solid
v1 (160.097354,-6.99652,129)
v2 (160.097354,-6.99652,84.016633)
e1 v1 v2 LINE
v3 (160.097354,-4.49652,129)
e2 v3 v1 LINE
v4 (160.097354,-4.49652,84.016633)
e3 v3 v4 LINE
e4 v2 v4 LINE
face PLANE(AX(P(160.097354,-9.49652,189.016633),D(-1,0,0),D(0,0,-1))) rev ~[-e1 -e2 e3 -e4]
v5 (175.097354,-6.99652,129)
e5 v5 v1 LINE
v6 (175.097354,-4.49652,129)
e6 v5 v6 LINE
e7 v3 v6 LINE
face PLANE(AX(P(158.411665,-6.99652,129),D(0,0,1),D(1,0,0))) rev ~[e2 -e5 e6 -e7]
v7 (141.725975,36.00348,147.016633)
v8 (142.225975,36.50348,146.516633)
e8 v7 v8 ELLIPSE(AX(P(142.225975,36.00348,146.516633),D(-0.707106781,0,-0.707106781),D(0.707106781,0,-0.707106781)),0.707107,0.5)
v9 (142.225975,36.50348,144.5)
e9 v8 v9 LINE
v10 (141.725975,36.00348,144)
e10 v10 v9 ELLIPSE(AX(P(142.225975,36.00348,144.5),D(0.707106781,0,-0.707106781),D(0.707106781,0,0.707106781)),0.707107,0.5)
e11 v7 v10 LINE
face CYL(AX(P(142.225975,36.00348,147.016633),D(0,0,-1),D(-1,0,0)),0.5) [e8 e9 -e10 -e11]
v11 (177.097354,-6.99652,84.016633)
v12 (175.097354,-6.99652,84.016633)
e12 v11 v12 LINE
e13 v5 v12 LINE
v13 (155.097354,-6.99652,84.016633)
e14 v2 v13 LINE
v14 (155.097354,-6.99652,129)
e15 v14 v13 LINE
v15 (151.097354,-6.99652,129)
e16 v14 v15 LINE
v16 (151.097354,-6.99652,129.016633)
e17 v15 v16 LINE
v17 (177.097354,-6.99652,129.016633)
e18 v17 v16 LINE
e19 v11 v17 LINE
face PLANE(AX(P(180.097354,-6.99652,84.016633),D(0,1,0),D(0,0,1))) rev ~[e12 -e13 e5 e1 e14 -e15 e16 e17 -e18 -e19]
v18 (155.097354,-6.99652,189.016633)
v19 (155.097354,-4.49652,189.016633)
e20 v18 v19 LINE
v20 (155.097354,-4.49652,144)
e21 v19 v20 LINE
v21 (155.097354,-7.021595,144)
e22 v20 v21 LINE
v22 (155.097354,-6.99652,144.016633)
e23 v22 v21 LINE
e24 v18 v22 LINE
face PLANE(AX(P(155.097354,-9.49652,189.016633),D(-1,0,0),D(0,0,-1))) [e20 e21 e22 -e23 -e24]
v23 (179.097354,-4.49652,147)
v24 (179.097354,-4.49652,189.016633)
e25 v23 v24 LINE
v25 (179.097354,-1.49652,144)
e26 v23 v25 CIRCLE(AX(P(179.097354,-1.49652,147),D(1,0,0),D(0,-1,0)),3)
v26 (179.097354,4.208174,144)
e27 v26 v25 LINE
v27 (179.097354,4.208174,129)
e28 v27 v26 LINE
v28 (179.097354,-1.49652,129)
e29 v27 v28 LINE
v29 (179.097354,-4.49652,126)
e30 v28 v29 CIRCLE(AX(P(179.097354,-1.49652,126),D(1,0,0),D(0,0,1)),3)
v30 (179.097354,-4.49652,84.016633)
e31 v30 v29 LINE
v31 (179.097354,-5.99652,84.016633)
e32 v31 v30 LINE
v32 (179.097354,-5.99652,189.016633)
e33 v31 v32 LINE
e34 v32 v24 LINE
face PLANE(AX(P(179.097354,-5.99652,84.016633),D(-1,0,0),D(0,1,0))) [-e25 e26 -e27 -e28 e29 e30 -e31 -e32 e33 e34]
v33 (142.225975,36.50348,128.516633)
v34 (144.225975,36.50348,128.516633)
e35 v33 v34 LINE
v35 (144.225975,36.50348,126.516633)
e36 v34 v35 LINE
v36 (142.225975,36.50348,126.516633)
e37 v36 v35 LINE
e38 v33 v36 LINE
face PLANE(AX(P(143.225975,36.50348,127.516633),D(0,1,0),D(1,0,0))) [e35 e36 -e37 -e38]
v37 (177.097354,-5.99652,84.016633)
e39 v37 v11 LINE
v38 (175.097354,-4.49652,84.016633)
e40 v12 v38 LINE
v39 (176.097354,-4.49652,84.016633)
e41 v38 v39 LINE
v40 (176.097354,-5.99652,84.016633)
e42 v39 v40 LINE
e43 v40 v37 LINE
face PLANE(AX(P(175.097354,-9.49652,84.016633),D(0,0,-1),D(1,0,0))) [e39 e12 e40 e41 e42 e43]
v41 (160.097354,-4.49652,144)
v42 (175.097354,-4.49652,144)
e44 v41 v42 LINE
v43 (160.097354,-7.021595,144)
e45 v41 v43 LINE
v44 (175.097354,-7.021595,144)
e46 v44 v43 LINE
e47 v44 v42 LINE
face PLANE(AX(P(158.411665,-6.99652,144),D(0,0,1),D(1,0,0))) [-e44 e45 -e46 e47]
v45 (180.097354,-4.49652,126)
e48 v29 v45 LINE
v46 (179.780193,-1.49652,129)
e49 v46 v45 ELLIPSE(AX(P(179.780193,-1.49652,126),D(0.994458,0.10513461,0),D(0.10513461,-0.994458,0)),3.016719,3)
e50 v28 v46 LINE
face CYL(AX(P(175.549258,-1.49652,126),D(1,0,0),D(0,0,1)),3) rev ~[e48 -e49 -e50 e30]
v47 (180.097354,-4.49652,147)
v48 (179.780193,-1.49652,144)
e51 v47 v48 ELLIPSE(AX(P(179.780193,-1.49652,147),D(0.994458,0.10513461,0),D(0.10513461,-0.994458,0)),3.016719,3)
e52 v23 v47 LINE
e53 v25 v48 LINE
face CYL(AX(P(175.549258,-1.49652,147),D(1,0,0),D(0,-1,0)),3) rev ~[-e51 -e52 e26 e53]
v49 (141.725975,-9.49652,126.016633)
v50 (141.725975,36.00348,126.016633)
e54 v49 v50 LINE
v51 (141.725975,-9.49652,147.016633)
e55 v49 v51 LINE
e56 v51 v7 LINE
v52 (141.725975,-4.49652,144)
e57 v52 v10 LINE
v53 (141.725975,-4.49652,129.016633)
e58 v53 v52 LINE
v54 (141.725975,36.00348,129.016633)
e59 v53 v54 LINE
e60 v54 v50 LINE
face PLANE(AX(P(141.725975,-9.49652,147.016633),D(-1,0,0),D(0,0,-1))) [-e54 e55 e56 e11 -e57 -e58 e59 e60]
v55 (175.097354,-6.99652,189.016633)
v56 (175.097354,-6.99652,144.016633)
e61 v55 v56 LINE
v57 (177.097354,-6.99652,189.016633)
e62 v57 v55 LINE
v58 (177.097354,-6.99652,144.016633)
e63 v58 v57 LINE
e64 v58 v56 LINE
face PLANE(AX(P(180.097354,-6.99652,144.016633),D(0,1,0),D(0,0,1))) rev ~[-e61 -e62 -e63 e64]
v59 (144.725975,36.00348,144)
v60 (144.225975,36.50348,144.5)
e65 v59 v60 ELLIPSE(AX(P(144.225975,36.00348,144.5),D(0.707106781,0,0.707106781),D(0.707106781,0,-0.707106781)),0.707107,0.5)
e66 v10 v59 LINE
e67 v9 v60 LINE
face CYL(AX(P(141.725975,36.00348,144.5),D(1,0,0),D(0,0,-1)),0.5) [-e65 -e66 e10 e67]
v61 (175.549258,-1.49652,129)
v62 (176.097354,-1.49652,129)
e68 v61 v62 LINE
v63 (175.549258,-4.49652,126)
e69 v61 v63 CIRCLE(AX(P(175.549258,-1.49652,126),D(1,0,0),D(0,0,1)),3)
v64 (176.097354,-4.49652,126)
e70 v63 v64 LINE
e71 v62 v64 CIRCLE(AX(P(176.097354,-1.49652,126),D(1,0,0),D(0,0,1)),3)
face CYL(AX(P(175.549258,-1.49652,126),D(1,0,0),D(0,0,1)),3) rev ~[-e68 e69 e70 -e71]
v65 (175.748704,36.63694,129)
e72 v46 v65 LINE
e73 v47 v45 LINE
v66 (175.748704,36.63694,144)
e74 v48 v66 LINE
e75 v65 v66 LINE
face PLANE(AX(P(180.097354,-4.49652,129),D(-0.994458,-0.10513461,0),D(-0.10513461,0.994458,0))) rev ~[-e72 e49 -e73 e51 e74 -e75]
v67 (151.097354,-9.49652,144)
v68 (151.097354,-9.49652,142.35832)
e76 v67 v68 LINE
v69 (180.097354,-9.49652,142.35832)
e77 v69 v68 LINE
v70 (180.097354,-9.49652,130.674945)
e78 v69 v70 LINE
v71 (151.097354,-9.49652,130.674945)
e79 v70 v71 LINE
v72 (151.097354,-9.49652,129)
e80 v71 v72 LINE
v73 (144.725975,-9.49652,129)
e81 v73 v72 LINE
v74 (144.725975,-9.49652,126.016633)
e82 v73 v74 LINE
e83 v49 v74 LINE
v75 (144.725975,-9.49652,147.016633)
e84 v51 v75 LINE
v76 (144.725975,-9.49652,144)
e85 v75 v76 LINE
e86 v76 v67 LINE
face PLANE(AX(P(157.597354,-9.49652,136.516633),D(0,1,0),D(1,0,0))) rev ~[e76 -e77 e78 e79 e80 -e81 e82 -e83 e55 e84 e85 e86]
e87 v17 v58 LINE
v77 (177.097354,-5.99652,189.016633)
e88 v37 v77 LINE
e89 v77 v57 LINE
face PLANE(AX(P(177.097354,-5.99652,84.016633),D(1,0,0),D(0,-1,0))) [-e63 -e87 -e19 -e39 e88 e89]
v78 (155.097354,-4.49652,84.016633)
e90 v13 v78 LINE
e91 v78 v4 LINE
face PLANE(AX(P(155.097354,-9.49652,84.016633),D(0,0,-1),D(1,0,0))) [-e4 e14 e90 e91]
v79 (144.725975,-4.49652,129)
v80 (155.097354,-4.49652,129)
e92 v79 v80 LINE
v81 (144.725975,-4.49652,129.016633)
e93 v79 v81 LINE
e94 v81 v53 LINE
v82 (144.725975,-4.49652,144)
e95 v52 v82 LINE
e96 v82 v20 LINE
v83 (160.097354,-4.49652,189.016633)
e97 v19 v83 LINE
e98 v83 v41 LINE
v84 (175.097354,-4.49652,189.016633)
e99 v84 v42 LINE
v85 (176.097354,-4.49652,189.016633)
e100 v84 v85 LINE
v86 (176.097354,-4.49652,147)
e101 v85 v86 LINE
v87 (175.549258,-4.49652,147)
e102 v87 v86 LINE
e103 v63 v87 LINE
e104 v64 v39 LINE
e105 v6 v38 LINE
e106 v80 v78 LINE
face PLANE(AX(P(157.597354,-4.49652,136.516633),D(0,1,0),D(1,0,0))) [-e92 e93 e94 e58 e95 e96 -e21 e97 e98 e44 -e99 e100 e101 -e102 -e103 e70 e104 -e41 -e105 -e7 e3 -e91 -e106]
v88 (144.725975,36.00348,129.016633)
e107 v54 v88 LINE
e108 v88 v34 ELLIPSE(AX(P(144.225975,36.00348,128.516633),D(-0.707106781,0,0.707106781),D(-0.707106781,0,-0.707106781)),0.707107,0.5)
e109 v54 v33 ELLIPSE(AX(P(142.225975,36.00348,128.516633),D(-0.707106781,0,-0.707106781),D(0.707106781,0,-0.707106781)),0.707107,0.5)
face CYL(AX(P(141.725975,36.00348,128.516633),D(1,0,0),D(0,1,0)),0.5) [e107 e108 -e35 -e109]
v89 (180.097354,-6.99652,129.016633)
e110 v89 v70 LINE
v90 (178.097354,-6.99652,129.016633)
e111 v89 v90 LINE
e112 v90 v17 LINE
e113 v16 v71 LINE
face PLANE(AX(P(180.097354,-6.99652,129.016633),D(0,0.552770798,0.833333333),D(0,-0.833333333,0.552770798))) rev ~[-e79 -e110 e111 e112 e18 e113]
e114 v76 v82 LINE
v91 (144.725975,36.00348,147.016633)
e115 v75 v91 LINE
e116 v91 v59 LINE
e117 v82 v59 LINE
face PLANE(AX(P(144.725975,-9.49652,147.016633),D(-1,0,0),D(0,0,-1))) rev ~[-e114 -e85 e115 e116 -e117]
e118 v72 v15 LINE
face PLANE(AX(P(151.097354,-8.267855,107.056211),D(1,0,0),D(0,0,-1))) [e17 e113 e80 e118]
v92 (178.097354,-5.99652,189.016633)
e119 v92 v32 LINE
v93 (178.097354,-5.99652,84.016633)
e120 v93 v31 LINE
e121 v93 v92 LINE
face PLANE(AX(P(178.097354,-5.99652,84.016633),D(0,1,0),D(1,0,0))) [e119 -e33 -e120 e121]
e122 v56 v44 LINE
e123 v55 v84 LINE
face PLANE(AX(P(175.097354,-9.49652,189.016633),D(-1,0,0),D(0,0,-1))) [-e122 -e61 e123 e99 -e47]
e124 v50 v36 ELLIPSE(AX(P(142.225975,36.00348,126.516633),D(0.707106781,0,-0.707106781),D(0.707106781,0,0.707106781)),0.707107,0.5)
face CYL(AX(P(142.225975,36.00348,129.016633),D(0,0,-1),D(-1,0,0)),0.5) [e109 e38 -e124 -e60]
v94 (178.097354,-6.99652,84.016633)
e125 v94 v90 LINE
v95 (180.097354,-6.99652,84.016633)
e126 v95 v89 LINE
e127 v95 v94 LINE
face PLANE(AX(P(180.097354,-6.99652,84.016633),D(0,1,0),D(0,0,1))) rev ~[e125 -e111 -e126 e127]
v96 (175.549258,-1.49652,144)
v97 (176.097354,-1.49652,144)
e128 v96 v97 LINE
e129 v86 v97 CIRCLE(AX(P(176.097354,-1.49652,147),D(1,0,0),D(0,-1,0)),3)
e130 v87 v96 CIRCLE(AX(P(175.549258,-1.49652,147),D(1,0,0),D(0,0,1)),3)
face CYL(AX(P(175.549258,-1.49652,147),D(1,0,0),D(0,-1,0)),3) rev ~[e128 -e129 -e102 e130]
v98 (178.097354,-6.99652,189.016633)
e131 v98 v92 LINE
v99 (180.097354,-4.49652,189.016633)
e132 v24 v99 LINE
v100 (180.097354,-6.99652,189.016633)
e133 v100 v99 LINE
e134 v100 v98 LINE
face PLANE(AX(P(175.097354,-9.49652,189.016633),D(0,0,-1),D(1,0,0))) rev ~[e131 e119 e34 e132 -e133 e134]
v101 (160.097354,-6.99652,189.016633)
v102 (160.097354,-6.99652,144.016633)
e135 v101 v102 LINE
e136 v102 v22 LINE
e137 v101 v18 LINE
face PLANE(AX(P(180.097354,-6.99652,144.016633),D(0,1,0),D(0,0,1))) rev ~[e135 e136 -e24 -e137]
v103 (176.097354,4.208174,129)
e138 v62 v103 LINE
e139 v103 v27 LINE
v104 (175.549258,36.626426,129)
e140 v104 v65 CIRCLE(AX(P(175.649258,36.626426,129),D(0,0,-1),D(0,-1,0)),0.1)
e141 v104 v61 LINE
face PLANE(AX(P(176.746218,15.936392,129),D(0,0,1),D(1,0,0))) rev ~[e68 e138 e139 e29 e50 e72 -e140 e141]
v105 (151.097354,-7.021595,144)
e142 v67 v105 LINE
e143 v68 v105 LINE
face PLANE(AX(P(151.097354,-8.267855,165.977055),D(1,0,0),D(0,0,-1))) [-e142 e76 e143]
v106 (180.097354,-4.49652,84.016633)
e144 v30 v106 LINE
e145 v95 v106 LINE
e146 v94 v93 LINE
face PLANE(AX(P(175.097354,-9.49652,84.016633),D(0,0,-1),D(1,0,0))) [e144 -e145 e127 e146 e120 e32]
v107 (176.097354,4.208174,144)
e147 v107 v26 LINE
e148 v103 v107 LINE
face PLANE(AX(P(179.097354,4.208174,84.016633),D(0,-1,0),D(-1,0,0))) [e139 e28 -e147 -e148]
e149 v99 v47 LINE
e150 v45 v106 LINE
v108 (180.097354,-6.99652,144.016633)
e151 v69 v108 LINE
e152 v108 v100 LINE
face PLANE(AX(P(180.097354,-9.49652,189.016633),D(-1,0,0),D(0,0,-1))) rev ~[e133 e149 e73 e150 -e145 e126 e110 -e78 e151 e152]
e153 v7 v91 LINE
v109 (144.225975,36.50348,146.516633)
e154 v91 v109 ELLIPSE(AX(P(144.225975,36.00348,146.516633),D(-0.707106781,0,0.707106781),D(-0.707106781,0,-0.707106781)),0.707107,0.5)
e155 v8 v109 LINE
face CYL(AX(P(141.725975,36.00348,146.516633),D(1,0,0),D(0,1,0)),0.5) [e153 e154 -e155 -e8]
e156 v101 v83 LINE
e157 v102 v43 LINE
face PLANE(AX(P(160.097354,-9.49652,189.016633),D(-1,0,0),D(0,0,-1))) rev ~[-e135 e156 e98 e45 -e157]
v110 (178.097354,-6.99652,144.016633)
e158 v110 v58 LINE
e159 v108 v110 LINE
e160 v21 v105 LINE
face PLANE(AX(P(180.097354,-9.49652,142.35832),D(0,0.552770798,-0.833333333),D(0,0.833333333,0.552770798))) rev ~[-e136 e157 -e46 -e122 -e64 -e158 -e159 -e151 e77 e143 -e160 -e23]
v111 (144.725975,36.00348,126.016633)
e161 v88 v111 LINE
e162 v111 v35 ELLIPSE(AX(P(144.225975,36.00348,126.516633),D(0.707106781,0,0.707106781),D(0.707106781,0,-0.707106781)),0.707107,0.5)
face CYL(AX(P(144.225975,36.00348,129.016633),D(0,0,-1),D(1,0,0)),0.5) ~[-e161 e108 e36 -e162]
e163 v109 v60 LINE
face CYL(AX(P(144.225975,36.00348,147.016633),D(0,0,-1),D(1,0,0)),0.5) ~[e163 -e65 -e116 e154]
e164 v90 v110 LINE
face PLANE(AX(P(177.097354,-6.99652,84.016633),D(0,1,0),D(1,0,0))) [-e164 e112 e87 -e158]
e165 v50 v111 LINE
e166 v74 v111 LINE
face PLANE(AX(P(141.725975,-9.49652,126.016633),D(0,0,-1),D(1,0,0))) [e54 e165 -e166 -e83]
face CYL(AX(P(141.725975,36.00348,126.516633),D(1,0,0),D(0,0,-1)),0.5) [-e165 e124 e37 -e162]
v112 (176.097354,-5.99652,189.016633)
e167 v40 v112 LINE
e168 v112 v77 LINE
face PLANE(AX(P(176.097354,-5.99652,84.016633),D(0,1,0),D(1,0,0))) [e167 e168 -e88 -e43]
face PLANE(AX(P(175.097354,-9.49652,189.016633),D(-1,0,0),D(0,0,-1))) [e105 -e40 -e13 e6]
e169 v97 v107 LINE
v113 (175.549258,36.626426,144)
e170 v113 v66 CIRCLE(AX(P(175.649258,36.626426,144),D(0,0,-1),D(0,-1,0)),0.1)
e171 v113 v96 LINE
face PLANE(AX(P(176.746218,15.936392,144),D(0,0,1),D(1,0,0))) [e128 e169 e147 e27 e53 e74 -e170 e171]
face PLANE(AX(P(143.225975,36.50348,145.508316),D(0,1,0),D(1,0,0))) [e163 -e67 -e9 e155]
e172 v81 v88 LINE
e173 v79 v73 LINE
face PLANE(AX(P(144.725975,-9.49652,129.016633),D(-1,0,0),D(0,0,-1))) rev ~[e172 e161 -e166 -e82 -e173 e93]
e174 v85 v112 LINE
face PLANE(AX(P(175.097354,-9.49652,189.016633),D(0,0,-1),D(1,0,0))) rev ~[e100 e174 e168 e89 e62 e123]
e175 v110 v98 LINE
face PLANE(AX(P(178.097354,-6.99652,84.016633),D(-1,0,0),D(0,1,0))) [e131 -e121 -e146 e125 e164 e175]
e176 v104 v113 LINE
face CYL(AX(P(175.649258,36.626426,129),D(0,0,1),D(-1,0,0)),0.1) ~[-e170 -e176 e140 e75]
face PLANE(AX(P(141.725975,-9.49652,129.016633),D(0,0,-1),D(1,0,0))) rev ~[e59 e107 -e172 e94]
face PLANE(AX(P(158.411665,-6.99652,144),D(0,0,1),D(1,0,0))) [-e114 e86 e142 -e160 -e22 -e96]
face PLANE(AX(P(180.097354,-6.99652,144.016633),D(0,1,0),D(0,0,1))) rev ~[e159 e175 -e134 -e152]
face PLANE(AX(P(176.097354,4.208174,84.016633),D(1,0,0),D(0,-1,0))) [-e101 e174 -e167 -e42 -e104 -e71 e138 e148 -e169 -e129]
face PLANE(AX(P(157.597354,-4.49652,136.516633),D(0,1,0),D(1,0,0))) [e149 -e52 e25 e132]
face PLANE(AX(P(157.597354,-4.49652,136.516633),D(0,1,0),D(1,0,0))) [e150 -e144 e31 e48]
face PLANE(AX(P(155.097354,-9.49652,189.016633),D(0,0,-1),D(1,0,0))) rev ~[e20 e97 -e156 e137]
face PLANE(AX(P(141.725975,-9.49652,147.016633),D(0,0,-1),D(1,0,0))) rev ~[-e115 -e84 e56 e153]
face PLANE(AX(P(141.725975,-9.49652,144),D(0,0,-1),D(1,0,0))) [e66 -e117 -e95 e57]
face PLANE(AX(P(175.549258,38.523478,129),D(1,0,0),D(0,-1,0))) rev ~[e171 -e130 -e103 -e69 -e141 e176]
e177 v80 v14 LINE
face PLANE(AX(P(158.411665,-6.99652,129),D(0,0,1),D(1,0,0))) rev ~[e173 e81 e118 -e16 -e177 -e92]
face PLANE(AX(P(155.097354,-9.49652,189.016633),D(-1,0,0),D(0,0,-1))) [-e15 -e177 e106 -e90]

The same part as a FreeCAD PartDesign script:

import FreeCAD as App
import Part
import Sketcher

V = App.Vector


def edges_at(feature, points):
    """Names of the edges that pass closest to the given points."""
    edges = feature.Shape.Edges
    near = lambda p: min(range(len(edges)), key=lambda i: edges[i].distToShape(Part.Vertex(*p))[0])
    return sorted({f"Edge{near(p) + 1}" for p in points})


def add_polygon(sketch, points):
    """Adds a closed chain of lines whose ends are joined by coincident constraints."""
    first, n = sketch.GeometryCount, len(points)
    for a, b in zip(points, points[1:] + points[:1]):
        sketch.addGeometry(Part.LineSegment(App.Vector(*a, 0), App.Vector(*b, 0)), False)
    for i in range(n):
        sketch.addConstraint(Sketcher.Constraint("Coincident", first + i, 2, first + (i + 1) % n, 1))

doc = App.newDocument("Part")
body = doc.addObject("PartDesign::Body", "Body")

# Sketch on XZ plane
sketch1 = body.newObject("Sketcher::SketchObject", "Sketch")
sketch1.AttachmentSupport = (doc.getObject("XZ_Plane"), [""])
sketch1.MapMode = "FlatFace"
sketch1.AttachmentOffset = App.Placement(V(0, 0, 9.49652), App.Rotation())
add_polygon(sketch1, [(175, 84), (175, 189), (180, 189), (180, 84)])  # lines 0-3
sketch1.addConstraint(Sketcher.Constraint("Vertical", 0))
sketch1.addConstraint(Sketcher.Constraint("Horizontal", 1))
sketch1.addConstraint(Sketcher.Constraint("Vertical", 2))
sketch1.addConstraint(Sketcher.Constraint("Horizontal", 3))
sketch1.addConstraint(Sketcher.Constraint("DistanceX", 1, 1, 1, 2, 5.0))
sketch1.addConstraint(Sketcher.Constraint("DistanceY", 0, 1, 0, 2, 105.0))
sketch1.addConstraint(Sketcher.Constraint("DistanceX", -1, 1, 0, 2, 175.097354))
sketch1.addConstraint(Sketcher.Constraint("DistanceY", -1, 1, 0, 2, 189.016633))
pad1 = body.newObject("PartDesign::Pad", "Pad")
pad1.Profile = sketch1
pad1.Length = 5
pad1.Reversed = True

# Sketch on XY plane
sketch2 = body.newObject("Sketcher::SketchObject", "Sketch001")
sketch2.AttachmentSupport = (doc.getObject("XY_Plane"), [""])
sketch2.MapMode = "FlatFace"
sketch2.AttachmentOffset = App.Placement(V(0, 0, 129), App.Rotation())
add_polygon(sketch2, [(180.1, -4.5), (175.5, 38.5), (175.5, -4.5)])  # lines 0-2
sketch2.addConstraint(Sketcher.Constraint("Vertical", 1))
sketch2.addConstraint(Sketcher.Constraint("Horizontal", 2))
sketch2.addConstraint(Sketcher.Constraint("DistanceX", 2, 1, 2, 2, 4.548096))
sketch2.addConstraint(Sketcher.Constraint("DistanceY", 1, 2, 1, 1, 43.019998))
sketch2.addConstraint(Sketcher.Constraint("DistanceX", -1, 1, 0, 2, 175.549258))
sketch2.addConstraint(Sketcher.Constraint("DistanceY", -1, 1, 0, 2, 38.523478))
pad2 = body.newObject("PartDesign::Pad", "Pad001")
pad2.Profile = sketch2
pad2.Length = 15

# Sketch on XY plane
sketch3 = body.newObject("Sketcher::SketchObject", "Sketch002")
sketch3.AttachmentSupport = (doc.getObject("XY_Plane"), [""])
sketch3.MapMode = "FlatFace"
sketch3.AttachmentOffset = App.Placement(V(0, 0, 129), App.Rotation())
add_polygon(sketch3, [(142, -4), (142, -9), (175, -9), (175, -4)])  # lines 0-3
sketch3.addConstraint(Sketcher.Constraint("Vertical", 0))
sketch3.addConstraint(Sketcher.Constraint("Horizontal", 1))
sketch3.addConstraint(Sketcher.Constraint("Vertical", 2))
sketch3.addConstraint(Sketcher.Constraint("Horizontal", 3))
sketch3.addConstraint(Sketcher.Constraint("DistanceY", 0, 2, 0, 1, 5.0))
sketch3.addConstraint(Sketcher.Constraint("DistanceX", 1, 1, 1, 2, 33.371379))
sketch3.addConstraint(Sketcher.Constraint("DistanceY", 0, 2, -1, 1, 9.49652))
sketch3.addConstraint(Sketcher.Constraint("DistanceX", -1, 1, 0, 2, 141.725975))
pad3 = body.newObject("PartDesign::Pad", "Pad002")
pad3.Profile = sketch3
pad3.Length = 15

# Sketch on XZ plane
sketch4 = body.newObject("Sketcher::SketchObject", "Sketch003")
sketch4.AttachmentSupport = (doc.getObject("XZ_Plane"), [""])
sketch4.MapMode = "FlatFace"
sketch4.AttachmentOffset = App.Placement(V(0, 0, 9.49652), App.Rotation())
add_polygon(sketch4, [(141.7, 144), (141.7, 147), (144.7, 147), (144.7, 144)])  # lines 0-3
add_polygon(sketch4, [(141.7, 126), (141.7, 129), (144.7, 129), (144.7, 126)])  # lines 4-7
sketch4.addConstraint(Sketcher.Constraint("Vertical", 0))
sketch4.addConstraint(Sketcher.Constraint("Horizontal", 1))
sketch4.addConstraint(Sketcher.Constraint("Vertical", 2))
sketch4.addConstraint(Sketcher.Constraint("Horizontal", 3))
sketch4.addConstraint(Sketcher.Constraint("Vertical", 4))
sketch4.addConstraint(Sketcher.Constraint("Horizontal", 5))
sketch4.addConstraint(Sketcher.Constraint("Vertical", 6))
sketch4.addConstraint(Sketcher.Constraint("Horizontal", 7))
sketch4.addConstraint(Sketcher.Constraint("Vertical", 3, 2, 4, 2))
sketch4.addConstraint(Sketcher.Constraint("Vertical", 2, 2, 5, 2))
sketch4.addConstraint(Sketcher.Constraint("Equal", 7, 4))
sketch4.addConstraint(Sketcher.Constraint("DistanceX", 1, 1, 1, 2, 3.0))
sketch4.addConstraint(Sketcher.Constraint("DistanceY", -1, 1, 2, 2, 144.0))
sketch4.addConstraint(Sketcher.Constraint("DistanceY", 4, 2, 0, 2, 18.0))
sketch4.addConstraint(Sketcher.Constraint("DistanceY", 0, 1, 0, 2, 3.016633))
sketch4.addConstraint(Sketcher.Constraint("DistanceX", -1, 1, 0, 2, 141.725975))
pad4 = body.newObject("PartDesign::Pad", "Pad003")
pad4.Profile = sketch4
pad4.Length = 46
pad4.Reversed = True
doc.recompute()

fillet = body.newObject("PartDesign::Fillet", "Fillet")
fillet.Base = (pad4, edges_at(pad4, [
    (144.726, 36.503, 145.508),
    (143.226, 36.503, 144),
    (141.726, 36.503, 145.508),
    (143.226, 36.503, 147.017),
    (144.726, 36.503, 127.517),
    (143.226, 36.503, 126.017),
    (141.726, 36.503, 127.517),
    (143.226, 36.503, 129.017),
]))
fillet.Radius = 0.5
doc.recompute()

fillet2 = body.newObject("PartDesign::Fillet", "Fillet001")
fillet2.Base = (fillet, edges_at(fillet, [(175.549, 38.523, 136.5)]))
fillet2.Radius = 0.1
doc.recompute()

fillet3 = body.newObject("PartDesign::Fillet", "Fillet002")
fillet3.Base = (fillet2, edges_at(fillet2, [(177.823, -4.497, 129), (177.823, -4.497, 144)]))
fillet3.Radius = 3
doc.recompute()

linearpattern = body.newObject("PartDesign::LinearPattern", "LinearPattern")
linearpattern.Originals = [pad1]
linearpattern.Direction = (doc.getObject("X_Axis"), [""])
linearpattern.Mode = "offset"
linearpattern.Offset = 20
linearpattern.Occurrences = 2
linearpattern.Reversed = True
body.Tip = linearpattern

# Sketch on YZ plane
sketch5 = body.newObject("Sketcher::SketchObject", "Sketch004")
sketch5.AttachmentSupport = (doc.getObject("YZ_Plane"), [""])
sketch5.MapMode = "FlatFace"
sketch5.AttachmentOffset = App.Placement(V(0, 0, 180.097354), App.Rotation())
add_polygon(sketch5, [(-7, 129), (-9.5, 130.7), (-9.5, 84), (-7, 84)])  # lines 0-3
add_polygon(sketch5, [(-7, 189), (-9.5, 189), (-9.5, 142.4), (-7, 144)])  # lines 4-7
sketch5.addConstraint(Sketcher.Constraint("Vertical", 1))
sketch5.addConstraint(Sketcher.Constraint("Horizontal", 2))
sketch5.addConstraint(Sketcher.Constraint("Vertical", 3))
sketch5.addConstraint(Sketcher.Constraint("Horizontal", 4))
sketch5.addConstraint(Sketcher.Constraint("Vertical", 5))
sketch5.addConstraint(Sketcher.Constraint("Vertical", 7))
sketch5.addConstraint(Sketcher.Constraint("Vertical", 1, 2, 4, 2))
sketch5.addConstraint(Sketcher.Constraint("Vertical", 3, 2, 6, 2))
sketch5.addConstraint(Sketcher.Constraint("Equal", 1, 5))
sketch5.addConstraint(Sketcher.Constraint("Equal", 3, 7))
sketch5.addConstraint(Sketcher.Constraint("DistanceY", 3, 1, 3, 2, 45.0))
sketch5.addConstraint(Sketcher.Constraint("Distance", 0, 3.0))
sketch5.addConstraint(Sketcher.Constraint("DistanceX", 2, 1, 2, 2, 2.5))
sketch5.addConstraint(Sketcher.Constraint("DistanceY", 3, 2, 4, 2, 60.0))
sketch5.addConstraint(Sketcher.Constraint("DistanceX", 0, 2, -1, 1, 9.49652))
sketch5.addConstraint(Sketcher.Constraint("DistanceY", -1, 1, 5, 2, 142.35832))
pocket1 = body.newObject("PartDesign::Pocket", "Pocket")
pocket1.Profile = sketch5
pocket1.Length = 29

# Sketch on XY plane
sketch6 = body.newObject("Sketcher::SketchObject", "Sketch005")
sketch6.AttachmentSupport = (doc.getObject("XY_Plane"), [""])
sketch6.MapMode = "FlatFace"
sketch6.AttachmentOffset = App.Placement(V(0, 0, 84.016633), App.Rotation())
add_polygon(sketch6, [(178.1, -6), (178.1, -7), (177.1, -7), (177.1, -6), (176.1, -6), (176.1, 4.2), (179.1, 4.2), (179.1, -6)])  # lines 0-7
sketch6.addConstraint(Sketcher.Constraint("Vertical", 0))
sketch6.addConstraint(Sketcher.Constraint("Horizontal", 1))
sketch6.addConstraint(Sketcher.Constraint("Vertical", 2))
sketch6.addConstraint(Sketcher.Constraint("Horizontal", 3))
sketch6.addConstraint(Sketcher.Constraint("Vertical", 4))
sketch6.addConstraint(Sketcher.Constraint("Horizontal", 5))
sketch6.addConstraint(Sketcher.Constraint("Vertical", 6))
sketch6.addConstraint(Sketcher.Constraint("Horizontal", 7))
sketch6.addConstraint(Sketcher.Constraint("Horizontal", 3, 2, 6, 2))
sketch6.addConstraint(Sketcher.Constraint("Equal", 1, 3))
sketch6.addConstraint(Sketcher.Constraint("Equal", 3, 7))
sketch6.addConstraint(Sketcher.Constraint("Equal", 7, 0))
sketch6.addConstraint(Sketcher.Constraint("DistanceX", 1, 2, 1, 1, 1.0))
sketch6.addConstraint(Sketcher.Constraint("DistanceY", 4, 1, 4, 2, 10.204694))
sketch6.addConstraint(Sketcher.Constraint("DistanceY", 0, 2, -1, 1, 6.99652))
sketch6.addConstraint(Sketcher.Constraint("DistanceX", -1, 1, 0, 2, 178.097354))
pocket2 = body.newObject("PartDesign::Pocket", "Pocket001")
pocket2.Profile = sketch6
pocket2.Length = 106
pocket2.Reversed = True

doc.recompute()
